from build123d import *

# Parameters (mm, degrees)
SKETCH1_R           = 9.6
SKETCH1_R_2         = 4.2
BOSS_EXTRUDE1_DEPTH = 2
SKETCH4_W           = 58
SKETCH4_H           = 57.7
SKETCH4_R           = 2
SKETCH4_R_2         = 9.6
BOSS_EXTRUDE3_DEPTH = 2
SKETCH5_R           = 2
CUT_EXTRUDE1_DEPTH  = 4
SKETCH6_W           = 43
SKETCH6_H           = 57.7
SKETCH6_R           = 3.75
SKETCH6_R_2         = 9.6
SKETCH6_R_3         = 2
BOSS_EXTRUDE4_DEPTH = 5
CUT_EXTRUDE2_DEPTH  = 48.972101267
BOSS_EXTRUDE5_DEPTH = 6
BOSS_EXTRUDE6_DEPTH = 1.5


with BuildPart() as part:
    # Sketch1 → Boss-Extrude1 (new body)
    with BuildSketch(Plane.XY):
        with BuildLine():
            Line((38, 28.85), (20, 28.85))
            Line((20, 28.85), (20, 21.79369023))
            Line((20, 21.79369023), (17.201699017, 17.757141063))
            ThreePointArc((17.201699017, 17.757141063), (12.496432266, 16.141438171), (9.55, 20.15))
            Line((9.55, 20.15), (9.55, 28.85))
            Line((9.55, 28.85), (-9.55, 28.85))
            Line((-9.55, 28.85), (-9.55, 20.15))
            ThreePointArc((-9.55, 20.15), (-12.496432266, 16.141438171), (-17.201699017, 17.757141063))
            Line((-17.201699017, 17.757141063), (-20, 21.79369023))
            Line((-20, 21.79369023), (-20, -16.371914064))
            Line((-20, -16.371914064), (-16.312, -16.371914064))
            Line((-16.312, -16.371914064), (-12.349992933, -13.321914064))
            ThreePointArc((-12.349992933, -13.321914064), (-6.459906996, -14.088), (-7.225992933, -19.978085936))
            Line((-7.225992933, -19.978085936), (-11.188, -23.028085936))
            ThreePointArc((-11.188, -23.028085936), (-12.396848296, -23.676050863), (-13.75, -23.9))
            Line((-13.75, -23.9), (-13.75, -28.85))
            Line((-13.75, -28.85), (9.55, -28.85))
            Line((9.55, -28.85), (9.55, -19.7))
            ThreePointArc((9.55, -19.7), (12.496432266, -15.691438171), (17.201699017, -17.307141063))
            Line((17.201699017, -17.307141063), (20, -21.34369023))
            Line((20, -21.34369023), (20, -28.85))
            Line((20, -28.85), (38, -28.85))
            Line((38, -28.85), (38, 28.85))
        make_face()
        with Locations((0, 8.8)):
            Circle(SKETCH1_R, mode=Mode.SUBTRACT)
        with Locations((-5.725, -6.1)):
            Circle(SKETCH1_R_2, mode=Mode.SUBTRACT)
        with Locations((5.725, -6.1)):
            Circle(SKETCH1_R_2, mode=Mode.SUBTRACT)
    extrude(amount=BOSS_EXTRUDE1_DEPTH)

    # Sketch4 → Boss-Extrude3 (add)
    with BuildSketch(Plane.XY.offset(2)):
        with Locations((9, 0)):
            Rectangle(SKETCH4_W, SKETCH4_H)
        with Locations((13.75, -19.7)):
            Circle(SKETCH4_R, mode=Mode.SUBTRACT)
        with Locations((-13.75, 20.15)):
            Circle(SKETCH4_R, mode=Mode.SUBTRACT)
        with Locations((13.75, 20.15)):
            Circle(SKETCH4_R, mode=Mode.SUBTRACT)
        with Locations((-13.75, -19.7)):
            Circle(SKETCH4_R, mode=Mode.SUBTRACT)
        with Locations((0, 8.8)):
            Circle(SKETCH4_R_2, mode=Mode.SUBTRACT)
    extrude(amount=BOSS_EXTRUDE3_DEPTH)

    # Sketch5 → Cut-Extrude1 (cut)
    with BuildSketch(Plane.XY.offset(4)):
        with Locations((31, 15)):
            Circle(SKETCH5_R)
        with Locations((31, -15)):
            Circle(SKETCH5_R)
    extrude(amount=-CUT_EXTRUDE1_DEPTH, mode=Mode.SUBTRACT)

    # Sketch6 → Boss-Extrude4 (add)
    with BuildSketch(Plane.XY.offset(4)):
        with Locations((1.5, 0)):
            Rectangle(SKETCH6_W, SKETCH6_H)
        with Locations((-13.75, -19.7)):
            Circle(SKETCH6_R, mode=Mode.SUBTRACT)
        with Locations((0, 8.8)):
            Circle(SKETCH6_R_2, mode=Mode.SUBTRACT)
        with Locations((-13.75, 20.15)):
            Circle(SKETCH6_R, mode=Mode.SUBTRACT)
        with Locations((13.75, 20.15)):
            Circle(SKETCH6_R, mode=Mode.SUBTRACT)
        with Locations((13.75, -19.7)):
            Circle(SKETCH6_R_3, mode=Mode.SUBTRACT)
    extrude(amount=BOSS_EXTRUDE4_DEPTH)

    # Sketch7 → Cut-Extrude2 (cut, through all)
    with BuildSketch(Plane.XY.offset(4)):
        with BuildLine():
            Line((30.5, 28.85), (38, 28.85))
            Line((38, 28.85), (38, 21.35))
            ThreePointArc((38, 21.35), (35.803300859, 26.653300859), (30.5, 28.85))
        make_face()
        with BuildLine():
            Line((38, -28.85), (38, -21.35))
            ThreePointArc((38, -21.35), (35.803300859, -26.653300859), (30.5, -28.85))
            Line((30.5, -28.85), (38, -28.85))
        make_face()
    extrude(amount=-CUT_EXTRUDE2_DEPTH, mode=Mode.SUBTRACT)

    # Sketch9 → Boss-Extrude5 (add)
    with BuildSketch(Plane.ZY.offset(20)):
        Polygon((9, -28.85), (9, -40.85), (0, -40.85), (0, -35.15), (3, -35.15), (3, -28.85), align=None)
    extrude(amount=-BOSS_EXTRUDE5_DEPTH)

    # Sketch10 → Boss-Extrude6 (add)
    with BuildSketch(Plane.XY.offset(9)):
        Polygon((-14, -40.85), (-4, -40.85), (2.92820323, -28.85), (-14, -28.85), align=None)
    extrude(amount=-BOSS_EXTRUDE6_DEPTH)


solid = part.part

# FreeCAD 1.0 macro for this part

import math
import FreeCAD as App
import Part
import Sketcher
Q = App.Units.Quantity


def add_polygon(sketch, points):
    """Adds a closed chain of lines whose ends are joined by coincident constraints."""
    first, n = sketch.GeometryCount, len(points)
    for a, b in zip(points, points[1:] + points[:1]):
        sketch.addGeometry(Part.LineSegment(App.Vector(*a, 0), App.Vector(*b, 0)), False)
    for i in range(n):
        sketch.addConstraint(Sketcher.Constraint("Coincident", first + i, 2, first + (i + 1) % n, 1))

doc = App.newDocument("Part")
body = doc.addObject("PartDesign::Body", "Body")

# Sketch on XY plane
sketch1 = body.newObject("Sketcher::SketchObject", "Sketch")
sketch1.AttachmentSupport = (doc.getObject("XY_Plane"), [""])
sketch1.MapMode = "FlatFace"
sketch1.addGeometry([
    Part.LineSegment(App.Vector(38, 28.9, 0), App.Vector(20, 28.9, 0)),  # 0
    Part.LineSegment(App.Vector(20, 28.9, 0), App.Vector(20, 21.8, 0)),  # 1
    Part.LineSegment(App.Vector(20, 21.8, 0), App.Vector(17.2, 17.8, 0)),  # 2
    Part.ArcOfCircle(Part.Circle(App.Vector(13.8, 20.1, 0), App.Vector(0, 0, 1), 4.2), math.radians(180), math.radians(325)),  # 3
    Part.LineSegment(App.Vector(9.6, 20.1, 0), App.Vector(9.6, 28.9, 0)),  # 4
    Part.LineSegment(App.Vector(9.6, 28.9, 0), App.Vector(-9.6, 28.9, 0)),  # 5
    Part.LineSegment(App.Vector(-9.6, 28.9, 0), App.Vector(-9.6, 20.1, 0)),  # 6
    Part.ArcOfCircle(Part.Circle(App.Vector(-13.8, 20.1, 0), App.Vector(0, 0, 1), 4.2), math.radians(-145), math.radians(0)),  # 7
    Part.LineSegment(App.Vector(-17.2, 17.8, 0), App.Vector(-20, 21.8, 0)),  # 8
    Part.LineSegment(App.Vector(-20, 21.8, 0), App.Vector(-20, -16.4, 0)),  # 9
    Part.LineSegment(App.Vector(-20, -16.4, 0), App.Vector(-16.3, -16.4, 0)),  # 10
    Part.LineSegment(App.Vector(-16.3, -16.4, 0), App.Vector(-12.3, -13.3, 0)),  # 11
    Part.ArcOfCircle(Part.Circle(App.Vector(-9.8, -16.6, 0), App.Vector(0, 0, 1), 4.2), math.radians(-52), math.radians(128)),  # 12
    Part.LineSegment(App.Vector(-7.2, -20, 0), App.Vector(-11.2, -23, 0)),  # 13
    Part.ArcOfCircle(Part.Circle(App.Vector(-13.8, -19.7, 0), App.Vector(0, 0, 1), 4.2), math.radians(-90), math.radians(-52)),  # 14
    Part.LineSegment(App.Vector(-13.8, -23.9, 0), App.Vector(-13.8, -28.9, 0)),  # 15
    Part.LineSegment(App.Vector(-13.8, -28.9, 0), App.Vector(9.6, -28.9, 0)),  # 16
    Part.LineSegment(App.Vector(9.6, -28.9, 0), App.Vector(9.6, -19.7, 0)),  # 17
    Part.ArcOfCircle(Part.Circle(App.Vector(13.8, -19.7, 0), App.Vector(0, 0, 1), 4.2), math.radians(35), math.radians(180)),  # 18
    Part.LineSegment(App.Vector(17.2, -17.3, 0), App.Vector(20, -21.3, 0)),  # 19
    Part.LineSegment(App.Vector(20, -21.3, 0), App.Vector(20, -28.9, 0)),  # 20
    Part.LineSegment(App.Vector(20, -28.9, 0), App.Vector(38, -28.9, 0)),  # 21
    Part.LineSegment(App.Vector(38, -28.9, 0), App.Vector(38, 28.9, 0)),  # 22
    Part.Circle(App.Vector(-5.7, -6.1, 0), App.Vector(0, 0, 1), 4.2),  # 23
    Part.Circle(App.Vector(5.7, -6.1, 0), App.Vector(0, 0, 1), 4.2),  # 24
    Part.Circle(App.Vector(0, 8.8, 0), App.Vector(0, 0, 1), 9.6),  # 25
], False)
sketch1.addConstraint([
    Sketcher.Constraint("Coincident", 0, 2, 1, 1),
    Sketcher.Constraint("Coincident", 1, 2, 2, 1),
    Sketcher.Constraint("Tangent", 2, 2, 3, 2),
    Sketcher.Constraint("Tangent", 3, 1, 4, 1),
    Sketcher.Constraint("Coincident", 4, 2, 5, 1),
    Sketcher.Constraint("Coincident", 5, 2, 6, 1),
    Sketcher.Constraint("Tangent", 6, 2, 7, 2),
    Sketcher.Constraint("Tangent", 7, 1, 8, 1),
    Sketcher.Constraint("Coincident", 8, 2, 9, 1),
    Sketcher.Constraint("Coincident", 9, 2, 10, 1),
    Sketcher.Constraint("Coincident", 10, 2, 11, 1),
    Sketcher.Constraint("Tangent", 11, 2, 12, 2),
    Sketcher.Constraint("Tangent", 12, 1, 13, 1),
    Sketcher.Constraint("Tangent", 13, 2, 14, 2),
    Sketcher.Constraint("Coincident", 14, 1, 15, 1),
    Sketcher.Constraint("Coincident", 15, 2, 16, 1),
    Sketcher.Constraint("Coincident", 16, 2, 17, 1),
    Sketcher.Constraint("Tangent", 17, 2, 18, 2),
    Sketcher.Constraint("Tangent", 18, 1, 19, 1),
    Sketcher.Constraint("Coincident", 19, 2, 20, 1),
    Sketcher.Constraint("Coincident", 20, 2, 21, 1),
    Sketcher.Constraint("Coincident", 21, 2, 22, 1),
    Sketcher.Constraint("Coincident", 22, 2, 0, 1),
    Sketcher.Constraint("Horizontal", 0),
    Sketcher.Constraint("Vertical", 1),
    Sketcher.Constraint("Vertical", 4),
    Sketcher.Constraint("Horizontal", 5),
    Sketcher.Constraint("Vertical", 6),
    Sketcher.Constraint("Vertical", 9),
    Sketcher.Constraint("Horizontal", 10),
    Sketcher.Constraint("Vertical", 15),
    Sketcher.Constraint("Horizontal", 16),
    Sketcher.Constraint("Vertical", 17),
    Sketcher.Constraint("Vertical", 20),
    Sketcher.Constraint("Horizontal", 21),
    Sketcher.Constraint("Vertical", 22),
    Sketcher.Constraint("Equal", 3, 7),
    Sketcher.Constraint("Equal", 7, 12),
    Sketcher.Constraint("Equal", 12, 14),
    Sketcher.Constraint("Equal", 14, 18),
    Sketcher.Constraint("Equal", 18, 23),
    Sketcher.Constraint("Equal", 23, 24),
    Sketcher.Constraint("Symmetric", 5, 2, 16, 2, -1, 1),
    Sketcher.Constraint("Symmetric", 3, 3, 7, 3, -2),
    Sketcher.Constraint("Symmetric", 14, 3, 18, 3, -2),
    Sketcher.Constraint("Symmetric", 23, 3, 24, 3, -2),
    Sketcher.Constraint("Symmetric", 1, 2, 8, 2, -2),
    Sketcher.Constraint("Symmetric", 0, 2, 20, 2, -1),
    Sketcher.Constraint("PointOnObject", 25, 3, -2),
    Sketcher.Constraint("Parallel", 11, 13),
    Sketcher.Constraint("Parallel", 8, 19),
    Sketcher.Constraint("Horizontal", 0, 2, 4, 2),
    Sketcher.Constraint("Vertical", 7, 3, 14, 1),
    Sketcher.Constraint("Equal", 11, 13),
    Sketcher.Constraint("Diameter", 23, Q("8.4 mm")),
    Sketcher.Constraint("Diameter", 25, Q("19.2 mm")),
    Sketcher.Constraint("DistanceX", 0, 2, 0, 1, Q("18 mm")),
    Sketcher.Constraint("Distance", 11, Q("5 mm")),
    Sketcher.Constraint("DistanceX", 5, 2, 5, 1, Q("19.1 mm")),
    Sketcher.Constraint("DistanceY", 4, 1, 4, 2, Q("8.7 mm")),
    Sketcher.Constraint("DistanceY", 22, 1, 22, 2, Q("57.7 mm")),
    Sketcher.Constraint("DistanceX", -1, 1, 0, 2, Q("20 mm")),
    Sketcher.Constraint("DistanceY", 15, 2, 15, 1, Q("4.95 mm")),
    Sketcher.Constraint("DistanceY", 23, 3, -1, 1, Q("6.1 mm")),
    Sketcher.Constraint("DistanceY", -1, 1, 25, 3, Q("8.8 mm")),
    Sketcher.Constraint("DistanceY", 12, 3, 7, 3, Q("36.8 mm")),
    Sketcher.Constraint("DistanceX", 23, 3, 24, 3, Q("11.45 mm")),
    Sketcher.Constraint("DistanceY", 1, 2, 1, 1, Q("7.05631 mm")),
])
pad1 = body.newObject("PartDesign::Pad", "Pad")
pad1.Profile = sketch1
pad1.Length = 2

# Sketch on XY plane
sketch2 = body.newObject("Sketcher::SketchObject", "Sketch001")
sketch2.AttachmentSupport = (doc.getObject("XY_Plane"), [""])
sketch2.MapMode = "FlatFace"
sketch2.AttachmentOffset = App.Placement(App.Vector(0, 0, 2), App.Rotation())
add_polygon(sketch2, [(-20, 28.9), (-20, -28.9), (38, -28.9), (38, 28.9)])  # lines 0-3
sketch2.addGeometry(Part.Circle(App.Vector(-13.8, -19.7, 0), App.Vector(0, 0, 1), 2), False)  # 4
sketch2.addGeometry(Part.Circle(App.Vector(13.8, -19.7, 0), App.Vector(0, 0, 1), 2), False)  # 5
sketch2.addGeometry(Part.Circle(App.Vector(-13.8, 20.1, 0), App.Vector(0, 0, 1), 2), False)  # 6
sketch2.addGeometry(Part.Circle(App.Vector(0, 8.8, 0), App.Vector(0, 0, 1), 9.6), False)  # 7
sketch2.addGeometry(Part.Circle(App.Vector(13.8, 20.1, 0), App.Vector(0, 0, 1), 2), False)  # 8
sketch2.addConstraint([
    Sketcher.Constraint("Vertical", 0),
    Sketcher.Constraint("Horizontal", 1),
    Sketcher.Constraint("Vertical", 2),
    Sketcher.Constraint("Horizontal", 3),
    Sketcher.Constraint("Equal", 4, 5),
    Sketcher.Constraint("Equal", 5, 6),
    Sketcher.Constraint("Equal", 6, 8),
    Sketcher.Constraint("Symmetric", 4, 3, 5, 3, -2),
    Sketcher.Constraint("Symmetric", 6, 3, 8, 3, -2),
    Sketcher.Constraint("PointOnObject", 7, 3, -2),
    Sketcher.Constraint("Vertical", 4, 3, 6, 3),
    Sketcher.Constraint("Diameter", 4, Q("4 mm")),
    Sketcher.Constraint("Diameter", 7, Q("19.2 mm")),
    Sketcher.Constraint("DistanceX", 1, 1, 1, 2, Q("58 mm")),
    Sketcher.Constraint("DistanceY", 0, 2, 0, 1, Q("57.7 mm")),
    Sketcher.Constraint("DistanceX", 0, 2, -1, 1, Q("20 mm")),
    Sketcher.Constraint("DistanceY", 0, 2, 6, 3, Q("49 mm")),
    Sketcher.Constraint("DistanceY", 4, 3, -1, 1, Q("19.7 mm")),
    Sketcher.Constraint("DistanceY", -1, 1, 7, 3, Q("8.8 mm")),
    Sketcher.Constraint("DistanceX", 4, 3, 5, 3, Q("27.5 mm")),
    Sketcher.Constraint("DistanceY", -1, 1, 6, 3, Q("20.15 mm")),
])
pad2 = body.newObject("PartDesign::Pad", "Pad001")
pad2.Profile = sketch2
pad2.Length = 2

# Sketch on XY plane
sketch3 = body.newObject("Sketcher::SketchObject", "Sketch002")
sketch3.AttachmentSupport = (doc.getObject("XY_Plane"), [""])
sketch3.MapMode = "FlatFace"
sketch3.AttachmentOffset = App.Placement(App.Vector(0, 0, 4), App.Rotation())
sketch3.addGeometry([
    Part.Circle(App.Vector(31, 15, 0), App.Vector(0, 0, 1), 2),
    Part.Circle(App.Vector(31, -15, 0), App.Vector(0, 0, 1), 2),
], False)
sketch3.addConstraint([
    Sketcher.Constraint("Equal", 0, 1),
    Sketcher.Constraint("Symmetric", 0, 3, 1, 3, -1),
    Sketcher.Constraint("Diameter", 0, Q("4 mm")),
    Sketcher.Constraint("DistanceX", -1, 1, 0, 3, Q("31 mm")),
    Sketcher.Constraint("DistanceY", -1, 1, 0, 3, Q("15 mm")),
])
pocket1 = body.newObject("PartDesign::Pocket", "Pocket")
pocket1.Profile = sketch3
pocket1.Length = 4

# Sketch on XY plane
sketch4 = body.newObject("Sketcher::SketchObject", "Sketch003")
sketch4.AttachmentSupport = (doc.getObject("XY_Plane"), [""])
sketch4.MapMode = "FlatFace"
sketch4.AttachmentOffset = App.Placement(App.Vector(0, 0, 4), App.Rotation())
add_polygon(sketch4, [(-20, 28.9), (-20, -28.9), (23, -28.9), (23, 28.9)])  # lines 0-3
sketch4.addGeometry(Part.Circle(App.Vector(-13.8, -19.7, 0), App.Vector(0, 0, 1), 3.8), False)  # 4
sketch4.addGeometry(Part.Circle(App.Vector(13.8, -19.7, 0), App.Vector(0, 0, 1), 2), False)  # 5
sketch4.addGeometry(Part.Circle(App.Vector(-13.8, 20.1, 0), App.Vector(0, 0, 1), 3.8), False)  # 6
sketch4.addGeometry(Part.Circle(App.Vector(0, 8.8, 0), App.Vector(0, 0, 1), 9.6), False)  # 7
sketch4.addGeometry(Part.Circle(App.Vector(13.8, 20.1, 0), App.Vector(0, 0, 1), 3.8), False)  # 8
sketch4.addConstraint([
    Sketcher.Constraint("Vertical", 0),
    Sketcher.Constraint("Horizontal", 1),
    Sketcher.Constraint("Vertical", 2),
    Sketcher.Constraint("Horizontal", 3),
    Sketcher.Constraint("Equal", 4, 6),
    Sketcher.Constraint("Equal", 6, 8),
    Sketcher.Constraint("Symmetric", 4, 3, 5, 3, -2),
    Sketcher.Constraint("Symmetric", 6, 3, 8, 3, -2),
    Sketcher.Constraint("PointOnObject", 7, 3, -2),
    Sketcher.Constraint("Vertical", 4, 3, 6, 3),
    Sketcher.Constraint("Diameter", 5, Q("4 mm")),
    Sketcher.Constraint("Diameter", 4, Q("7.5 mm")),
    Sketcher.Constraint("Diameter", 7, Q("19.2 mm")),
    Sketcher.Constraint("DistanceX", 1, 1, 1, 2, Q("43 mm")),
    Sketcher.Constraint("DistanceY", 0, 2, 0, 1, Q("57.7 mm")),
    Sketcher.Constraint("DistanceX", 0, 2, -1, 1, Q("20 mm")),
    Sketcher.Constraint("DistanceY", 0, 2, 6, 3, Q("49 mm")),
    Sketcher.Constraint("DistanceY", 4, 3, -1, 1, Q("19.7 mm")),
    Sketcher.Constraint("DistanceY", -1, 1, 7, 3, Q("8.8 mm")),
    Sketcher.Constraint("DistanceX", 4, 3, 5, 3, Q("27.5 mm")),
    Sketcher.Constraint("DistanceY", -1, 1, 6, 3, Q("20.15 mm")),
])
pad3 = body.newObject("PartDesign::Pad", "Pad002")
pad3.Profile = sketch4
pad3.Length = 5

# Sketch on XY plane
sketch5 = body.newObject("Sketcher::SketchObject", "Sketch004")
sketch5.AttachmentSupport = (doc.getObject("XY_Plane"), [""])
sketch5.MapMode = "FlatFace"
sketch5.AttachmentOffset = App.Placement(App.Vector(0, 0, 4), App.Rotation())
sketch5.addGeometry([
    Part.LineSegment(App.Vector(38, 29, 0), App.Vector(30, 29, 0)),  # 0
    Part.ArcOfCircle(Part.Circle(App.Vector(30, 21, 0), App.Vector(0, 0, 1), 8), math.radians(0), math.radians(90)),  # 1
    Part.LineSegment(App.Vector(38, 21, 0), App.Vector(38, 29, 0)),  # 2
    Part.LineSegment(App.Vector(38, -29, 0), App.Vector(38, -21, 0)),  # 3
    Part.ArcOfCircle(Part.Circle(App.Vector(30, -21, 0), App.Vector(0, 0, 1), 8), math.radians(-90), math.radians(0)),  # 4
    Part.LineSegment(App.Vector(30, -29, 0), App.Vector(38, -29, 0)),  # 5
], False)
sketch5.addConstraint([
    Sketcher.Constraint("Tangent", 0, 2, 1, 2),
    Sketcher.Constraint("Tangent", 1, 1, 2, 1),
    Sketcher.Constraint("Coincident", 2, 2, 0, 1),
    Sketcher.Constraint("Tangent", 3, 2, 4, 2),
    Sketcher.Constraint("Tangent", 4, 1, 5, 1),
    Sketcher.Constraint("Coincident", 5, 2, 3, 1),
    Sketcher.Constraint("Horizontal", 0),
    Sketcher.Constraint("Vertical", 2),
    Sketcher.Constraint("Vertical", 3),
    Sketcher.Constraint("Horizontal", 5),
    Sketcher.Constraint("Equal", 1, 4),
    Sketcher.Constraint("Symmetric", 1, 3, 4, 3, -1),
    Sketcher.Constraint("Radius", 1, Q("7.5 mm")),
    Sketcher.Constraint("DistanceX", -1, 1, 1, 1, Q("38 mm")),
    Sketcher.Constraint("DistanceY", 4, 3, 1, 3, Q("42.7 mm")),
])
pocket2 = body.newObject("PartDesign::Pocket", "Pocket001")
pocket2.Profile = sketch5
pocket2.Type = "ThroughAll"

# Sketch on YZ plane
sketch6 = body.newObject("Sketcher::SketchObject", "Sketch005")
sketch6.AttachmentSupport = (doc.getObject("YZ_Plane"), [""])
sketch6.MapMode = "FlatFace"
sketch6.AttachmentOffset = App.Placement(App.Vector(0, 0, -20), App.Rotation())
add_polygon(sketch6, [(-40.9, 9), (-28.9, 9), (-28.9, 3), (-35.1, 3), (-35.1, 0), (-40.9, 0)])  # lines 0-5
sketch6.addConstraint([
    Sketcher.Constraint("Horizontal", 0),
    Sketcher.Constraint("Vertical", 1),
    Sketcher.Constraint("Horizontal", 2),
    Sketcher.Constraint("Vertical", 3),
    Sketcher.Constraint("Horizontal", 4),
    Sketcher.Constraint("Vertical", 5),
    Sketcher.Constraint("PointOnObject", 3, 2, -1),
    Sketcher.Constraint("DistanceX", 0, 1, 0, 2, Q("12 mm")),
    Sketcher.Constraint("DistanceY", 1, 2, 1, 1, Q("6 mm")),
    Sketcher.Constraint("DistanceY", 3, 2, 3, 1, Q("3 mm")),
    Sketcher.Constraint("DistanceX", 2, 2, 2, 1, Q("6.3 mm")),
    Sketcher.Constraint("DistanceX", 0, 2, -1, 1, Q("28.85 mm")),
])
pad4 = body.newObject("PartDesign::Pad", "Pad003")
pad4.Profile = sketch6
pad4.Length = 6

# Sketch on XY plane
sketch7 = body.newObject("Sketcher::SketchObject", "Sketch006")
sketch7.AttachmentSupport = (doc.getObject("XY_Plane"), [""])
sketch7.MapMode = "FlatFace"
sketch7.AttachmentOffset = App.Placement(App.Vector(0, 0, 9), App.Rotation())
add_polygon(sketch7, [(-14, -41), (-4, -41), (3, -29), (-14, -29)])  # lines 0-3
sketch7.addConstraint([
    Sketcher.Constraint("Horizontal", 0),
    Sketcher.Constraint("Horizontal", 2),
    Sketcher.Constraint("Vertical", 3),
    Sketcher.Constraint("DistanceX", 0, 1, 0, 2, Q("10 mm")),
    Sketcher.Constraint("DistanceY", 3, 2, 3, 1, Q("12 mm")),
    Sketcher.Constraint("Angle", 1, Q("60 deg")),
    Sketcher.Constraint("DistanceX", 0, 2, -1, 1, Q("4 mm")),
    Sketcher.Constraint("DistanceY", 0, 2, -1, 1, Q("40.85 mm")),
])
pad5 = body.newObject("PartDesign::Pad", "Pad004")
pad5.Profile = sketch7
pad5.Length = 1.5
pad5.Reversed = True

doc.recompute()
